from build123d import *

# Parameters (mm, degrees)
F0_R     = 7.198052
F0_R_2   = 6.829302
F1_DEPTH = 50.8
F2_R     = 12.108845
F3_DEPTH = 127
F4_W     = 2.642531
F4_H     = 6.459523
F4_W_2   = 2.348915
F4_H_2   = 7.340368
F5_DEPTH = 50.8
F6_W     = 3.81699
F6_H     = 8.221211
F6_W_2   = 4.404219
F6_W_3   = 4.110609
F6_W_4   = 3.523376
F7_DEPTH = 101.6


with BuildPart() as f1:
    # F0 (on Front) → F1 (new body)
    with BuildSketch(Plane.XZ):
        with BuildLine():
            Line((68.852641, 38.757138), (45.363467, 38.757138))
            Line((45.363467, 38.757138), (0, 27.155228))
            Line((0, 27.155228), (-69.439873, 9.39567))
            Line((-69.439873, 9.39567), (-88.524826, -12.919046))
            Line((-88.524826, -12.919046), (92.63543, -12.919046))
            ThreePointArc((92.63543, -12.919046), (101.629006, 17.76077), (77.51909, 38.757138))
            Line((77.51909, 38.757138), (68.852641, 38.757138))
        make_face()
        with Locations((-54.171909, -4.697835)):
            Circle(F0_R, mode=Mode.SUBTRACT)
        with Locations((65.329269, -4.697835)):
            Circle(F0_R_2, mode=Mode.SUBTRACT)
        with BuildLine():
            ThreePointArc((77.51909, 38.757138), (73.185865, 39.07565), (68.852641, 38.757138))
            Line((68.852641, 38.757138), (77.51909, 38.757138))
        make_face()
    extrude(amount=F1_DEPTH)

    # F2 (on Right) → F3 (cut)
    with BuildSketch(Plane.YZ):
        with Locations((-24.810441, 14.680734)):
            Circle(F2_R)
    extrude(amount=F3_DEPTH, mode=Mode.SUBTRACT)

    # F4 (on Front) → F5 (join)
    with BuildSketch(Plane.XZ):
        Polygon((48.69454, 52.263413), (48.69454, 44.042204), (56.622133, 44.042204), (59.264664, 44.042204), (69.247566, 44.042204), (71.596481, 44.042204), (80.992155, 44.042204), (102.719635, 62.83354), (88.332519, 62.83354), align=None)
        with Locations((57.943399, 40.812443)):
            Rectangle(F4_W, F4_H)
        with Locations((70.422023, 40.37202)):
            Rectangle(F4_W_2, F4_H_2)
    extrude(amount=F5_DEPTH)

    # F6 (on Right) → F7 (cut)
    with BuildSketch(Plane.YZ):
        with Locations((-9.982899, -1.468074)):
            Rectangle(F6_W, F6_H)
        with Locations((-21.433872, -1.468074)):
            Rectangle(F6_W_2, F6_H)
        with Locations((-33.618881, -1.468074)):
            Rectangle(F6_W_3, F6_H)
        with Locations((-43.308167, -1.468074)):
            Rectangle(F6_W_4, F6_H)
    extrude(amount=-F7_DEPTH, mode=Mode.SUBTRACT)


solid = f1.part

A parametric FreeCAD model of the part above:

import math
import FreeCAD as App
import Part
import Sketcher
from FreeCAD import Vector
Q = App.Units.Quantity


def add_polygon(sketch, points):
    """Adds a closed chain of lines whose ends are joined by coincident constraints."""
    first, n = sketch.GeometryCount, len(points)
    for a, b in zip(points, points[1:] + points[:1]):
        sketch.addGeometry(Part.LineSegment(App.Vector(*a, 0), App.Vector(*b, 0)), False)
    for i in range(n):
        sketch.addConstraint(Sketcher.Constraint("Coincident", first + i, 2, first + (i + 1) % n, 1))

doc = App.newDocument("Part")
body = doc.addObject("PartDesign::Body", "Body")

sketch1 = body.newObject("Sketcher::SketchObject", "Sketch")
sketch1.AttachmentSupport = (doc.getObject("XZ_Plane"), [""])
sketch1.MapMode = "FlatFace"
sketch1.addGeometry(Part.LineSegment(Vector(45.363467, 38.757138, 0), Vector(0, 27.155228, 0)), False)
sketch1.addGeometry(Part.LineSegment(Vector(0, 27.155228, 0), Vector(-69.439873, 9.39567, 0)), False)
sketch1.addGeometry(Part.LineSegment(Vector(-69.439873, 9.39567, 0), Vector(-88.524826, -12.919046, 0)), False)
sketch1.addGeometry(Part.LineSegment(Vector(-88.524826, -12.919046, 0), Vector(92.63543, -12.919046, 0)), False)
sketch1.addGeometry(Part.ArcOfCircle(Part.Circle(Vector(73.185865, 9.44057, 0), Vector(0, 0, 1), 29.635081), math.radians(-48.981545), math.radians(81.592099)), False)
sketch1.addGeometry(Part.ArcOfCircle(Part.Circle(Vector(73.185866, 9.440527, 0), Vector(0, 0, 1), 29.635123), math.radians(81.592112), math.radians(98.407888)), False)
sketch1.addGeometry(Part.LineSegment(Vector(68.852641, 38.757138, 0), Vector(45.363467, 38.757138, 0)), False)
sketch1.addGeometry(Part.Circle(Vector(-54.171909, -4.697835, 0), Vector(0, 0, 1), 7.198052), False)
sketch1.addGeometry(Part.Circle(Vector(65.329269, -4.697835, 0), Vector(0, 0, 1), 6.829302), False)
sketch1.addConstraint(Sketcher.Constraint("Coincident", 0, 2, 1, 1))
sketch1.addConstraint(Sketcher.Constraint("Coincident", 1, 2, 2, 1))
sketch1.addConstraint(Sketcher.Constraint("Coincident", 2, 2, 3, 1))
sketch1.addConstraint(Sketcher.Constraint("Coincident", 3, 2, 4, 1))
sketch1.addConstraint(Sketcher.Constraint("Coincident", 4, 2, 5, 1))
sketch1.addConstraint(Sketcher.Constraint("Coincident", 5, 2, 6, 1))
sketch1.addConstraint(Sketcher.Constraint("Coincident", 6, 2, 0, 1))
sketch1.addConstraint(Sketcher.Constraint("Horizontal", 3))
sketch1.addConstraint(Sketcher.Constraint("Horizontal", 6))
sketch1.addConstraint(Sketcher.Constraint("PointOnObject", 0, 2, -2))
sketch1.addConstraint(Sketcher.Constraint("Radius", 4, 29.635081))
sketch1.addConstraint(Sketcher.Constraint("Diameter", 7, 14.396104))
sketch1.addConstraint(Sketcher.Constraint("Diameter", 8, 13.658604))
sketch1.addConstraint(Sketcher.Constraint("Radius", 5, 29.635123))
sketch1.addConstraint(Sketcher.Constraint("DistanceY", 3, 2, 4, 3, Q("0.8802998 in")))
sketch1.addConstraint(Sketcher.Constraint("DistanceY", 5, 3, 0, 2, 17.714701))
sketch1.addConstraint(Sketcher.Constraint("DistanceY", 1, 2, 4, 3, 0.0449))
sketch1.addConstraint(Sketcher.Constraint("DistanceX", 6, 2, 5, 3, 27.822399))
sketch1.addConstraint(Sketcher.Constraint("Distance", 0, 46.823589))
sketch1.addConstraint(Sketcher.Constraint("DistanceX", 3, 1, 3, 2, 181.160256))
sketch1.addConstraint(Sketcher.Constraint("DistanceX", 6, 2, 6, 1, 23.489174))
sketch1.addConstraint(Sketcher.Constraint("DistanceY", -1, 1, 4, 3, 9.44057))
sketch1.addConstraint(Sketcher.Constraint("DistanceX", 7, 3, -1, 1, 54.171909))
sketch1.addConstraint(Sketcher.Constraint("DistanceX", -1, 1, 8, 3, 65.329269))
sketch1.addConstraint(Sketcher.Constraint("DistanceY", -1, 1, 0, 2, 27.155228))
sketch1.addConstraint(Sketcher.Constraint("DistanceX", -1, 1, 4, 2, 77.51909))
sketch1.addConstraint(Sketcher.Constraint("DistanceX", 1, 2, 8, 3, 134.769142))
sketch1.addConstraint(Sketcher.Constraint("DistanceY", 2, 2, 7, 3, 8.221211))
sketch1.addConstraint(Sketcher.Constraint("DistanceY", 2, 2, 8, 3, 8.221211))
pad1 = body.newObject("PartDesign::Pad", "Pad")
pad1.Profile = sketch1
pad1.Length = Q("2 in")

sketch2 = body.newObject("Sketcher::SketchObject", "Sketch001")
sketch2.AttachmentSupport = (doc.getObject("YZ_Plane"), [""])
sketch2.MapMode = "FlatFace"
sketch2.addGeometry(Part.Circle(Vector(-25, 15, 0), Vector(0, 0, 1), 12), False)
sketch2.addConstraint(Sketcher.Constraint("Diameter", 0, 24.21769))
sketch2.addConstraint(Sketcher.Constraint("DistanceX", 0, 3, -1, 1, 24.810441))
sketch2.addConstraint(Sketcher.Constraint("DistanceY", -1, 1, 0, 3, 14.680734))
pocket1 = body.newObject("PartDesign::Pocket", "Pocket")
pocket1.Profile = sketch2
pocket1.Length = Q("5 in")
pocket1.Reversed = True

sketch3 = body.newObject("Sketcher::SketchObject", "Sketch002")
sketch3.AttachmentSupport = (doc.getObject("XZ_Plane"), [""])
sketch3.MapMode = "FlatFace"
add_polygon(sketch3, [(88.3, 62.8), (48.7, 52.3), (48.7, 44), (56.6, 44), (56.6, 37.6), (59.3, 37.6), (59.3, 44), (69.2, 44), (69.2, 36.7), (71.6, 36.7), (71.6, 44), (81, 44), (102.7, 62.8)])
sketch3.addConstraint(Sketcher.Constraint("Vertical", 1))
sketch3.addConstraint(Sketcher.Constraint("Horizontal", 2))
sketch3.addConstraint(Sketcher.Constraint("Vertical", 3))
sketch3.addConstraint(Sketcher.Constraint("Horizontal", 4))
sketch3.addConstraint(Sketcher.Constraint("Vertical", 5))
sketch3.addConstraint(Sketcher.Constraint("Horizontal", 6))
sketch3.addConstraint(Sketcher.Constraint("Vertical", 7))
sketch3.addConstraint(Sketcher.Constraint("Horizontal", 8))
sketch3.addConstraint(Sketcher.Constraint("Vertical", 9))
sketch3.addConstraint(Sketcher.Constraint("Horizontal", 10))
sketch3.addConstraint(Sketcher.Constraint("Horizontal", 12))
sketch3.addConstraint(Sketcher.Constraint("Horizontal", 2, 2, 5, 2))
sketch3.addConstraint(Sketcher.Constraint("Horizontal", 6, 2, 9, 2))
sketch3.addConstraint(Sketcher.Constraint("DistanceX", 6, 1, 6, 2, 9.982901))
sketch3.addConstraint(Sketcher.Constraint("DistanceX", 4, 1, 4, 2, 2.642531))
sketch3.addConstraint(Sketcher.Constraint("DistanceY", 1, 2, 1, 1, 8.221209))
sketch3.addConstraint(Sketcher.Constraint("DistanceX", 2, 1, 2, 2, 7.927593))
sketch3.addConstraint(Sketcher.Constraint("DistanceX", 8, 1, 8, 2, 2.348915))
sketch3.addConstraint(Sketcher.Constraint("DistanceX", 10, 1, 10, 2, 9.395674))
sketch3.addConstraint(Sketcher.Constraint("DistanceX", 12, 2, 12, 1, 14.387116))
sketch3.addConstraint(Sketcher.Constraint("DistanceY", 3, 2, 3, 1, 6.459522))
sketch3.addConstraint(Sketcher.Constraint("DistanceY", 7, 2, 7, 1, 7.340368))
sketch3.addConstraint(Sketcher.Constraint("DistanceX", -1, 1, 0, 2, 48.69454))
sketch3.addConstraint(Sketcher.Constraint("DistanceY", -1, 1, 3, 2, 37.582681))
sketch3.addConstraint(Sketcher.Constraint("DistanceY", -1, 1, 11, 2, 62.83354))
sketch3.addConstraint(Sketcher.Constraint("DistanceX", -1, 1, 12, 2, 88.332519))
pad2 = body.newObject("PartDesign::Pad", "Pad001")
pad2.Profile = sketch3
pad2.Length = Q("2 in")

sketch4 = body.newObject("Sketcher::SketchObject", "Sketch003")
sketch4.AttachmentSupport = (doc.getObject("YZ_Plane"), [""])
sketch4.MapMode = "FlatFace"
add_polygon(sketch4, [(-11.9, 2.6), (-11.9, -5.6), (-8.1, -5.6), (-8.1, 2.6)])
add_polygon(sketch4, [(-23.6, 2.6), (-23.6, -5.6), (-19.2, -5.6), (-19.2, 2.6)])
add_polygon(sketch4, [(-35.7, 2.6), (-35.7, -5.6), (-31.6, -5.6), (-31.6, 2.6)])
add_polygon(sketch4, [(-45.1, 2.6), (-45.1, -5.6), (-41.5, -5.6), (-41.5, 2.6)])
sketch4.addConstraint(Sketcher.Constraint("Vertical", 0))
sketch4.addConstraint(Sketcher.Constraint("Horizontal", 1))
sketch4.addConstraint(Sketcher.Constraint("Vertical", 2))
sketch4.addConstraint(Sketcher.Constraint("Horizontal", 3))
sketch4.addConstraint(Sketcher.Constraint("Vertical", 4))
sketch4.addConstraint(Sketcher.Constraint("Horizontal", 5))
sketch4.addConstraint(Sketcher.Constraint("Vertical", 6))
sketch4.addConstraint(Sketcher.Constraint("Horizontal", 7))
sketch4.addConstraint(Sketcher.Constraint("Vertical", 8))
sketch4.addConstraint(Sketcher.Constraint("Horizontal", 9))
sketch4.addConstraint(Sketcher.Constraint("Vertical", 10))
sketch4.addConstraint(Sketcher.Constraint("Horizontal", 11))
sketch4.addConstraint(Sketcher.Constraint("Vertical", 12))
sketch4.addConstraint(Sketcher.Constraint("Horizontal", 13))
sketch4.addConstraint(Sketcher.Constraint("Vertical", 14))
sketch4.addConstraint(Sketcher.Constraint("Horizontal", 15))
sketch4.addConstraint(Sketcher.Constraint("Horizontal", 1, 2, 4, 2))
sketch4.addConstraint(Sketcher.Constraint("Horizontal", 3, 2, 6, 2))
sketch4.addConstraint(Sketcher.Constraint("Horizontal", 5, 2, 8, 2))
sketch4.addConstraint(Sketcher.Constraint("Horizontal", 7, 2, 10, 2))
sketch4.addConstraint(Sketcher.Constraint("Horizontal", 9, 2, 12, 2))
sketch4.addConstraint(Sketcher.Constraint("Horizontal", 11, 2, 14, 2))
sketch4.addConstraint(Sketcher.Constraint("DistanceX", 1, 1, 1, 2, 3.81699))
sketch4.addConstraint(Sketcher.Constraint("DistanceX", 5, 1, 5, 2, 4.404219))
sketch4.addConstraint(Sketcher.Constraint("DistanceX", 9, 1, 9, 2, 4.110609))
sketch4.addConstraint(Sketcher.Constraint("DistanceY", 0, 2, 0, 1, 8.221211))
sketch4.addConstraint(Sketcher.Constraint("DistanceX", 13, 1, 13, 2, 3.523376))
sketch4.addConstraint(Sketcher.Constraint("DistanceY", 0, 2, -1, 1, 5.578679))
sketch4.addConstraint(Sketcher.Constraint("DistanceX", 4, 2, -1, 1, 23.635981))
sketch4.addConstraint(Sketcher.Constraint("DistanceX", 13, 2, -1, 1, 41.546479))
sketch4.addConstraint(Sketcher.Constraint("DistanceX", 5, 2, 0, 2, 7.340368))
sketch4.addConstraint(Sketcher.Constraint("DistanceX", 8, 2, 0, 2, 23.782792))
pocket2 = body.newObject("PartDesign::Pocket", "Pocket001")
pocket2.Profile = sketch4
pocket2.Length = Q("4 in")

doc.recompute()
